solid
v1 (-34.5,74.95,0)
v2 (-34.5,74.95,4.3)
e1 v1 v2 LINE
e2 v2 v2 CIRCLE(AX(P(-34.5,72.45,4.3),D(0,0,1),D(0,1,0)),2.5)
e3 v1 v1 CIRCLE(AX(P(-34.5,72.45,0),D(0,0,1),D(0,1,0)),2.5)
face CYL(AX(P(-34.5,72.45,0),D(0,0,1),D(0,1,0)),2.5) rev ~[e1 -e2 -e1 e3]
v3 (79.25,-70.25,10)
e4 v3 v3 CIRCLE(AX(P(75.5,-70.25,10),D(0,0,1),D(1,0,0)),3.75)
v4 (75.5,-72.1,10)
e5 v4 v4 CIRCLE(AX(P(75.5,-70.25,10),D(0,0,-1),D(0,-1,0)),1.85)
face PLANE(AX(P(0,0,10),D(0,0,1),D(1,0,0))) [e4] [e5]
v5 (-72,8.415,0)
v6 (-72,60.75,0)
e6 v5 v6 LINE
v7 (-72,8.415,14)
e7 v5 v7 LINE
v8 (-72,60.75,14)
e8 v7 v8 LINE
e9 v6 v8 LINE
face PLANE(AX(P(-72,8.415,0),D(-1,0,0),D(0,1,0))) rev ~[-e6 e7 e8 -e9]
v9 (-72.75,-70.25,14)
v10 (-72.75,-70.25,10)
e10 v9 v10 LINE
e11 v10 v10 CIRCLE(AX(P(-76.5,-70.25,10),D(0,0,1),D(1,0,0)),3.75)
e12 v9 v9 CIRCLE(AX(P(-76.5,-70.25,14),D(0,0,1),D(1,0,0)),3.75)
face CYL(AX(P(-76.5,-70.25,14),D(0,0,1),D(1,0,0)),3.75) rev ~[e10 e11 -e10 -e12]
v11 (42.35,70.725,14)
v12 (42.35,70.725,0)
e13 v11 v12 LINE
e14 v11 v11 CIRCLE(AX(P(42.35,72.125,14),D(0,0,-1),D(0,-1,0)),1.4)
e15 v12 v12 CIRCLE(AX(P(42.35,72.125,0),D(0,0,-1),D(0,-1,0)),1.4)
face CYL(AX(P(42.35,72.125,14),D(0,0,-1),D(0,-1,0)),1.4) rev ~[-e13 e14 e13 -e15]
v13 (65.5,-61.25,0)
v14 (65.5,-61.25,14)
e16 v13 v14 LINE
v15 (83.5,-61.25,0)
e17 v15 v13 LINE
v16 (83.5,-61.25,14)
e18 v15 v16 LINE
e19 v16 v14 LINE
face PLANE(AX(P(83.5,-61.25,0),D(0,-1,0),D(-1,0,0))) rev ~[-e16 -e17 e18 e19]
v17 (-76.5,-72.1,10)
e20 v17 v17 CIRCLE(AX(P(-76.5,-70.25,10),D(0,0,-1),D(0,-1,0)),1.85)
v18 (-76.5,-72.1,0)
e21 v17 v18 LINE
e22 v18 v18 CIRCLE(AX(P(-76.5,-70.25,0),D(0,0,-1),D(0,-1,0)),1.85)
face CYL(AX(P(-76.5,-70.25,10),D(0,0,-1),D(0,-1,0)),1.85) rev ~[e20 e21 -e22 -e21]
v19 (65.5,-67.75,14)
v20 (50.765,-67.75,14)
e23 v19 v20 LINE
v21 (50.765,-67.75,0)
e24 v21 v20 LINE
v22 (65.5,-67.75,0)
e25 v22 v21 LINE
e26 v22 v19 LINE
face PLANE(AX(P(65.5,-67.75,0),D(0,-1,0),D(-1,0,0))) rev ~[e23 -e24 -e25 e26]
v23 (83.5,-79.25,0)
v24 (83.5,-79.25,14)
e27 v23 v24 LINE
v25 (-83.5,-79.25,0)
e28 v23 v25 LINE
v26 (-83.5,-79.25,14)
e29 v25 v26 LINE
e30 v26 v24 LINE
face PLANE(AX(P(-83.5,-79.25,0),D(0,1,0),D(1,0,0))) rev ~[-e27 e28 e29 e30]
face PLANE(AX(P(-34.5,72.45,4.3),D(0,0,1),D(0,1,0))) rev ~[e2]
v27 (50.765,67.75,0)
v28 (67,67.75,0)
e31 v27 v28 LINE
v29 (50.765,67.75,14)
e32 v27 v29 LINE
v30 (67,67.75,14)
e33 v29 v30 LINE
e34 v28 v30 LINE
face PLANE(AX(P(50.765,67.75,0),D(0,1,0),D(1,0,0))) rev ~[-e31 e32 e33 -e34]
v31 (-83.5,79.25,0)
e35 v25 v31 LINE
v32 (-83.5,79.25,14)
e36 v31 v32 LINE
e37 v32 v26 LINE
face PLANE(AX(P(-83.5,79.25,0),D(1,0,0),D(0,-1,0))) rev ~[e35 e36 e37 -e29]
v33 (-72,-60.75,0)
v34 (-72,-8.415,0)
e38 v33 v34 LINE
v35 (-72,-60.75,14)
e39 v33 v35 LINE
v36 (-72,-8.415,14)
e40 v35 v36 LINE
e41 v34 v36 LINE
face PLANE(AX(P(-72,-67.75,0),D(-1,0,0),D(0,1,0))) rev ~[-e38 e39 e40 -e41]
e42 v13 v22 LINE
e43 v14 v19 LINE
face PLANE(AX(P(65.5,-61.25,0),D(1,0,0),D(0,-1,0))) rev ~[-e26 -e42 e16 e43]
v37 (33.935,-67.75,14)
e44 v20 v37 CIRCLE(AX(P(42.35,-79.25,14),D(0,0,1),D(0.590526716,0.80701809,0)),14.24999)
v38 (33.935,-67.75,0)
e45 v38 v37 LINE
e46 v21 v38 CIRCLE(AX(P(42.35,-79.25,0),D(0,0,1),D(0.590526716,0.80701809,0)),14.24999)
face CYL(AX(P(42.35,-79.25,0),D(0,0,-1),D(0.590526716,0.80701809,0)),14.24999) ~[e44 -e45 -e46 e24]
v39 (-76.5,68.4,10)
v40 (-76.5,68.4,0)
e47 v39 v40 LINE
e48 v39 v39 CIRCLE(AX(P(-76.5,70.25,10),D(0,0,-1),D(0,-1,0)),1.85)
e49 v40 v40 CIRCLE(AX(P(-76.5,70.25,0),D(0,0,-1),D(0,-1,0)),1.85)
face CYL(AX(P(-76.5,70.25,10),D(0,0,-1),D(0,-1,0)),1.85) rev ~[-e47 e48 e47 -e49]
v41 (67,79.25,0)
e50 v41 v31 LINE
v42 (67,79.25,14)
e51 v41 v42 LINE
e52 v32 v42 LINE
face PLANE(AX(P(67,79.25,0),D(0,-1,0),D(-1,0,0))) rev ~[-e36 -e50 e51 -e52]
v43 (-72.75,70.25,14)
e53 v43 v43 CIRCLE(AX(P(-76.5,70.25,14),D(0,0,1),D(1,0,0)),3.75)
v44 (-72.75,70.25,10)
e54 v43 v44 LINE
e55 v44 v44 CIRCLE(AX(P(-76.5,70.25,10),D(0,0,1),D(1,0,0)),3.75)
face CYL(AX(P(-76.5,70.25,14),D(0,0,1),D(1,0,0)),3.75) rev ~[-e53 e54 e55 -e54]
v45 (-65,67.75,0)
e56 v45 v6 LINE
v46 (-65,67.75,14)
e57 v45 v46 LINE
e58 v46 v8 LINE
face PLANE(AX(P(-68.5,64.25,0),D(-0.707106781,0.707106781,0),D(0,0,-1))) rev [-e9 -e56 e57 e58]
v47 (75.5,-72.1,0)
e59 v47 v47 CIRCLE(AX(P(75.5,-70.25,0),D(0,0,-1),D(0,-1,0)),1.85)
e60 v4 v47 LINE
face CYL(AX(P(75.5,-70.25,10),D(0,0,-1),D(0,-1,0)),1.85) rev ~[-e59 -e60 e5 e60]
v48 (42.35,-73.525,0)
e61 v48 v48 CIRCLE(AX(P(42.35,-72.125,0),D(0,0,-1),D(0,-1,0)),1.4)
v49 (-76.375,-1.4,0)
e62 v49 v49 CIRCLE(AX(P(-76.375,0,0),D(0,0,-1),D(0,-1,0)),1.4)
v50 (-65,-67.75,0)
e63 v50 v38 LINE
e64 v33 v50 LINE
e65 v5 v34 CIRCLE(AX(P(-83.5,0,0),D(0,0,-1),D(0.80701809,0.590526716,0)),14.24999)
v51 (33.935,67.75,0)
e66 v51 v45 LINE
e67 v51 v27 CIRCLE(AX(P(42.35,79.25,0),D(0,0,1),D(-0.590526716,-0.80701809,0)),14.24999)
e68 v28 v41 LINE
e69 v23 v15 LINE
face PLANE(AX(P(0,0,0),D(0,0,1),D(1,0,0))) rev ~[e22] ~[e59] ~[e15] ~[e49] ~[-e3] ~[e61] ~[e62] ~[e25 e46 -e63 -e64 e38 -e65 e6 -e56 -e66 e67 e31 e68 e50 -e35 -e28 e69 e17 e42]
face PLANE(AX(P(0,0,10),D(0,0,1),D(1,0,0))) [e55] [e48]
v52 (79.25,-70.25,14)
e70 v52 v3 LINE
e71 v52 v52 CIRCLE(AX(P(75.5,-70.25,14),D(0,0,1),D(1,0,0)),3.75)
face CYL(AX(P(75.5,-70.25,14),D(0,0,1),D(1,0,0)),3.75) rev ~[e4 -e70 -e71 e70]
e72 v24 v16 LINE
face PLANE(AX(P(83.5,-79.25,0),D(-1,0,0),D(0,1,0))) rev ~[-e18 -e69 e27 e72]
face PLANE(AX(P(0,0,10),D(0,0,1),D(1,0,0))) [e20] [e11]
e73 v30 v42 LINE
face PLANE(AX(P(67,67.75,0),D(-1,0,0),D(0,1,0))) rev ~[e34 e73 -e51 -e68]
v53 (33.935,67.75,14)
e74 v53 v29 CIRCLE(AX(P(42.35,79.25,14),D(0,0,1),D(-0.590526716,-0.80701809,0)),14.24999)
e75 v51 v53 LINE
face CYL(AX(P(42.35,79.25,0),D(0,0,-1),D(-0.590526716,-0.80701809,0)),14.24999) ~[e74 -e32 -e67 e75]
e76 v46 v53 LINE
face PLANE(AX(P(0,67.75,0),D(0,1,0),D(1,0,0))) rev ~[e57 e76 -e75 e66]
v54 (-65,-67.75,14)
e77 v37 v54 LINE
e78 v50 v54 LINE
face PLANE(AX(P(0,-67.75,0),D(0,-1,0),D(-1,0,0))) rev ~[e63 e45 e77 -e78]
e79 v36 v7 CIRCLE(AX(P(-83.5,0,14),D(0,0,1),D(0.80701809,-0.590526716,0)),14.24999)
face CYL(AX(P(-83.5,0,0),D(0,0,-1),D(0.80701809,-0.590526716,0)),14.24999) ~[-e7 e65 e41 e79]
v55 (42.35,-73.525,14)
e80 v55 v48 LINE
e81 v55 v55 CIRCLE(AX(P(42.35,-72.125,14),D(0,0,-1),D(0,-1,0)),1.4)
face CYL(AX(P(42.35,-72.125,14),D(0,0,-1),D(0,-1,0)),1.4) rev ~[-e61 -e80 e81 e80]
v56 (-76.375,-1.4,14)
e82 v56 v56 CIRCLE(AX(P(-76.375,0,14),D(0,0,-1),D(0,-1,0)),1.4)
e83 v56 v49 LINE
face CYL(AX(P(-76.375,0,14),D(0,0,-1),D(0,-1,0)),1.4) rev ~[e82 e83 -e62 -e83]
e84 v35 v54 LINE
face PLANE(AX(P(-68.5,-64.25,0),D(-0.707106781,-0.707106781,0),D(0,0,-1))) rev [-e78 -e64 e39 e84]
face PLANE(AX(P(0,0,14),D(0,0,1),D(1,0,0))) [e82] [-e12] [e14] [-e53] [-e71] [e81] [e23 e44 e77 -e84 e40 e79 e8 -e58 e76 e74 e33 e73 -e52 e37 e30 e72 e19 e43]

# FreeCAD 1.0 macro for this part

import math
import FreeCAD as App
import Part
import Sketcher
from FreeCAD import Vector


def edges_at(feature, points):
    """Names of the edges that pass closest to the given points."""
    edges = feature.Shape.Edges
    near = lambda p: min(range(len(edges)), key=lambda i: edges[i].distToShape(Part.Vertex(*p))[0])
    return sorted({f"Edge{near(p) + 1}" for p in points})

doc = App.newDocument("Part")
body = doc.addObject("PartDesign::Body", "Body")

# Sketch on XY plane
sketch1 = doc.addObject("Sketcher::SketchObject", "Sketch")
body.addObject(sketch1)
sketch1.AttachmentSupport = (doc.XY_Plane, [""])
sketch1.MapMode = "FlatFace"
sketch1.addGeometry([
    Part.LineSegment(Vector(67, 79, 0), Vector(-84, 79, 0)),  # 0
    Part.LineSegment(Vector(-84, 79, 0), Vector(-84, -79, 0)),  # 1
    Part.LineSegment(Vector(-84, -79, 0), Vector(84, -79, 0)),  # 2
    Part.LineSegment(Vector(84, -79, 0), Vector(84, -61, 0)),  # 3
    Part.LineSegment(Vector(84, -61, 0), Vector(66, -61, 0)),  # 4
    Part.LineSegment(Vector(66, -61, 0), Vector(66, -68, 0)),  # 5
    Part.LineSegment(Vector(66, -68, 0), Vector(51, -68, 0)),  # 6
    Part.ArcOfCircle(Part.Circle(Vector(42, -79, 0), Vector(0, 0, 1), 14), math.radians(54), math.radians(126)),  # 7
    Part.LineSegment(Vector(34, -68, 0), Vector(-72, -68, 0)),  # 8
    Part.LineSegment(Vector(-72, -68, 0), Vector(-72, -8, 0)),  # 9
    Part.ArcOfCircle(Part.Circle(Vector(-84, 0, 0), Vector(0, 0, 1), 14), math.radians(-36), math.radians(36)),  # 10
    Part.LineSegment(Vector(-72, 8, 0), Vector(-72, 68, 0)),  # 11
    Part.LineSegment(Vector(-72, 68, 0), Vector(34, 68, 0)),  # 12
    Part.ArcOfCircle(Part.Circle(Vector(42, 79, 0), Vector(0, 0, 1), 14), math.radians(-126), math.radians(-54)),  # 13
    Part.LineSegment(Vector(51, 68, 0), Vector(67, 68, 0)),  # 14
    Part.LineSegment(Vector(67, 68, 0), Vector(67, 79, 0)),  # 15
], False)
sketch1.addConstraint([
    Sketcher.Constraint("Coincident", 0, 2, 1, 1),
    Sketcher.Constraint("Coincident", 1, 2, 2, 1),
    Sketcher.Constraint("Coincident", 2, 2, 3, 1),
    Sketcher.Constraint("Coincident", 3, 2, 4, 1),
    Sketcher.Constraint("Coincident", 4, 2, 5, 1),
    Sketcher.Constraint("Coincident", 5, 2, 6, 1),
    Sketcher.Constraint("Coincident", 6, 2, 7, 1),
    Sketcher.Constraint("Coincident", 7, 2, 8, 1),
    Sketcher.Constraint("Coincident", 8, 2, 9, 1),
    Sketcher.Constraint("Coincident", 9, 2, 10, 1),
    Sketcher.Constraint("Coincident", 10, 2, 11, 1),
    Sketcher.Constraint("Coincident", 11, 2, 12, 1),
    Sketcher.Constraint("Coincident", 12, 2, 13, 1),
    Sketcher.Constraint("Coincident", 13, 2, 14, 1),
    Sketcher.Constraint("Coincident", 14, 2, 15, 1),
    Sketcher.Constraint("Coincident", 15, 2, 0, 1),
    Sketcher.Constraint("Horizontal", 0),
    Sketcher.Constraint("Vertical", 1),
    Sketcher.Constraint("Horizontal", 2),
    Sketcher.Constraint("Vertical", 3),
    Sketcher.Constraint("Horizontal", 4),
    Sketcher.Constraint("Vertical", 5),
    Sketcher.Constraint("Horizontal", 6),
    Sketcher.Constraint("Horizontal", 8),
    Sketcher.Constraint("Vertical", 9),
    Sketcher.Constraint("Vertical", 11),
    Sketcher.Constraint("Horizontal", 12),
    Sketcher.Constraint("Horizontal", 14),
    Sketcher.Constraint("Vertical", 15),
    Sketcher.Constraint("Equal", 7, 10),
    Sketcher.Constraint("Equal", 10, 13),
    Sketcher.Constraint("Symmetric", 0, 2, 2, 2, -1, 1),
    Sketcher.Constraint("Symmetric", 7, 3, 13, 3, -1),
    Sketcher.Constraint("Symmetric", 9, 2, 10, 2, -1),
    Sketcher.Constraint("Horizontal", 13, 3, 0, 2),
    Sketcher.Constraint("Horizontal", 6, 2, 7, 2),
    Sketcher.Constraint("Horizontal", 12, 2, 13, 2),
    Sketcher.Constraint("Vertical", 10, 3, 0, 2),
    Sketcher.Constraint("Vertical", 7, 2, 12, 2),
    Sketcher.Constraint("Equal", 4, 3),
    Sketcher.Constraint("DistanceX", 2, 1, 2, 2, 167.0),
    Sketcher.Constraint("DistanceX", 4, 2, 4, 1, 18.0),
    Sketcher.Constraint("Radius", 7, 14.25),
    Sketcher.Constraint("DistanceX", 0, 2, 0, 1, 150.5),
    Sketcher.Constraint("DistanceY", 1, 2, 1, 1, 158.5),
    Sketcher.Constraint("DistanceY", 15, 1, 15, 2, 11.5),
    Sketcher.Constraint("DistanceX", 1, 2, 8, 2, 11.5),
    Sketcher.Constraint("DistanceX", -1, 1, 7, 3, 42.35),
])
pad1 = doc.addObject("PartDesign::Pad", "Pad")
body.addObject(pad1)
pad1.Profile = sketch1
pad1.Length = 14
doc.recompute()

chamfer = doc.addObject("PartDesign::Chamfer", "Chamfer")
body.addObject(chamfer)
chamfer.Base = (pad1, edges_at(pad1, [(-72, 67.75, 7), (-72, -67.75, 7)]))
chamfer.Size = 7

# Sketch on XY plane
sketch2 = doc.addObject("Sketcher::SketchObject", "Sketch001")
body.addObject(sketch2)
sketch2.AttachmentSupport = (doc.XY_Plane, [""])
sketch2.MapMode = "FlatFace"
sketch2.AttachmentOffset = App.Placement(Vector(0, 0, 14), App.Rotation())
sketch2.addGeometry([
    Part.Circle(Vector(-76.5, 70.2, 0), Vector(0, 0, 1), 3.8),
    Part.Circle(Vector(-76.5, -70.2, 0), Vector(0, 0, 1), 3.8),
    Part.Circle(Vector(75.5, -70.2, 0), Vector(0, 0, 1), 3.8),
], False)
sketch2.addConstraint([
    Sketcher.Constraint("Equal", 0, 1),
    Sketcher.Constraint("Equal", 1, 2),
    Sketcher.Constraint("Symmetric", 0, 3, 1, 3, -1),
    Sketcher.Constraint("Horizontal", 1, 3, 2, 3),
    Sketcher.Constraint("Diameter", 0, 7.5),
    Sketcher.Constraint("DistanceX", 1, 3, 2, 3, 152.0),
    Sketcher.Constraint("DistanceX", 0, 3, -1, 1, 76.5),
    Sketcher.Constraint("DistanceY", 1, 3, 0, 3, 140.5),
])
pocket1 = doc.addObject("PartDesign::Pocket", "Pocket")
body.addObject(pocket1)
pocket1.Profile = sketch2
pocket1.Length = 4

# Sketch on XY plane
sketch3 = doc.addObject("Sketcher::SketchObject", "Sketch002")
body.addObject(sketch3)
sketch3.AttachmentSupport = (doc.XY_Plane, [""])
sketch3.MapMode = "FlatFace"
sketch3.AttachmentOffset = App.Placement(Vector(0, 0, 10), App.Rotation())
sketch3.addGeometry([
    Part.Circle(Vector(-76.5, 70.2, 0), Vector(0, 0, 1), 1.9),
    Part.Circle(Vector(-76.5, -70.2, 0), Vector(0, 0, 1), 1.9),
    Part.Circle(Vector(75.5, -70.2, 0), Vector(0, 0, 1), 1.9),
], False)
sketch3.addConstraint([
    Sketcher.Constraint("Equal", 0, 1),
    Sketcher.Constraint("Equal", 1, 2),
    Sketcher.Constraint("Symmetric", 0, 3, 1, 3, -1),
    Sketcher.Constraint("Horizontal", 1, 3, 2, 3),
    Sketcher.Constraint("Diameter", 0, 3.7),
    Sketcher.Constraint("DistanceX", 1, 3, 2, 3, 152.0),
    Sketcher.Constraint("DistanceX", 0, 3, -1, 1, 76.5),
    Sketcher.Constraint("DistanceY", 1, 3, 0, 3, 140.5),
])
doc.recompute()
hole = doc.addObject("PartDesign::Hole", "Hole")
body.addObject(hole)
hole.Profile = sketch3
hole.ThreadType = "None"
hole.Diameter = 3.7
hole.DepthType = "ThroughAll"

# Sketch on XY plane
sketch4 = doc.addObject("Sketcher::SketchObject", "Sketch003")
body.addObject(sketch4)
sketch4.AttachmentSupport = (doc.XY_Plane, [""])
sketch4.MapMode = "FlatFace"
sketch4.addGeometry(Part.Circle(Vector(-34.5, 72.5, 0), Vector(0, 0, 1), 2.5), False)
sketch4.addConstraint([
    Sketcher.Constraint("Diameter", 0, 5.0),
    Sketcher.Constraint("DistanceX", 0, 3, -1, 1, 34.5),
    Sketcher.Constraint("DistanceY", -1, 1, 0, 3, 72.45),
])
doc.recompute()
hole2 = doc.addObject("PartDesign::Hole", "Hole001")
body.addObject(hole2)
hole2.Profile = sketch4
hole2.ThreadType = "None"
hole2.Diameter = 5
hole2.DepthType = "Dimension"
hole2.Depth = 4.3
hole2.DrillPoint = "Flat"
hole2.Reversed = True

# Sketch on XY plane
sketch5 = doc.addObject("Sketcher::SketchObject", "Sketch004")
body.addObject(sketch5)
sketch5.AttachmentSupport = (doc.XY_Plane, [""])
sketch5.MapMode = "FlatFace"
sketch5.AttachmentOffset = App.Placement(Vector(0, 0, 14), App.Rotation())
sketch5.addGeometry([
    Part.Circle(Vector(-76.4, 0, 0), Vector(0, 0, 1), 1.4),
    Part.Circle(Vector(42.4, 72.1, 0), Vector(0, 0, 1), 1.4),
    Part.Circle(Vector(42.4, -72.1, 0), Vector(0, 0, 1), 1.4),
], False)
sketch5.addConstraint([
    Sketcher.Constraint("Equal", 0, 1),
    Sketcher.Constraint("Equal", 1, 2),
    Sketcher.Constraint("Symmetric", 1, 3, 2, 3, -1),
    Sketcher.Constraint("PointOnObject", 0, 3, -1),
    Sketcher.Constraint("Diameter", 0, 2.8),
    Sketcher.Constraint("DistanceX", -1, 1, 1, 3, 42.35),
    Sketcher.Constraint("DistanceY", 2, 3, 1, 3, 144.25),
    Sketcher.Constraint("DistanceX", 0, 3, -1, 1, 76.375),
])
doc.recompute()
hole3 = doc.addObject("PartDesign::Hole", "Hole002")
body.addObject(hole3)
hole3.Profile = sketch5
hole3.ThreadType = "None"
hole3.Diameter = 2.8
hole3.DepthType = "Dimension"
hole3.Depth = 14
hole3.DrillPoint = "Flat"

doc.recompute()
